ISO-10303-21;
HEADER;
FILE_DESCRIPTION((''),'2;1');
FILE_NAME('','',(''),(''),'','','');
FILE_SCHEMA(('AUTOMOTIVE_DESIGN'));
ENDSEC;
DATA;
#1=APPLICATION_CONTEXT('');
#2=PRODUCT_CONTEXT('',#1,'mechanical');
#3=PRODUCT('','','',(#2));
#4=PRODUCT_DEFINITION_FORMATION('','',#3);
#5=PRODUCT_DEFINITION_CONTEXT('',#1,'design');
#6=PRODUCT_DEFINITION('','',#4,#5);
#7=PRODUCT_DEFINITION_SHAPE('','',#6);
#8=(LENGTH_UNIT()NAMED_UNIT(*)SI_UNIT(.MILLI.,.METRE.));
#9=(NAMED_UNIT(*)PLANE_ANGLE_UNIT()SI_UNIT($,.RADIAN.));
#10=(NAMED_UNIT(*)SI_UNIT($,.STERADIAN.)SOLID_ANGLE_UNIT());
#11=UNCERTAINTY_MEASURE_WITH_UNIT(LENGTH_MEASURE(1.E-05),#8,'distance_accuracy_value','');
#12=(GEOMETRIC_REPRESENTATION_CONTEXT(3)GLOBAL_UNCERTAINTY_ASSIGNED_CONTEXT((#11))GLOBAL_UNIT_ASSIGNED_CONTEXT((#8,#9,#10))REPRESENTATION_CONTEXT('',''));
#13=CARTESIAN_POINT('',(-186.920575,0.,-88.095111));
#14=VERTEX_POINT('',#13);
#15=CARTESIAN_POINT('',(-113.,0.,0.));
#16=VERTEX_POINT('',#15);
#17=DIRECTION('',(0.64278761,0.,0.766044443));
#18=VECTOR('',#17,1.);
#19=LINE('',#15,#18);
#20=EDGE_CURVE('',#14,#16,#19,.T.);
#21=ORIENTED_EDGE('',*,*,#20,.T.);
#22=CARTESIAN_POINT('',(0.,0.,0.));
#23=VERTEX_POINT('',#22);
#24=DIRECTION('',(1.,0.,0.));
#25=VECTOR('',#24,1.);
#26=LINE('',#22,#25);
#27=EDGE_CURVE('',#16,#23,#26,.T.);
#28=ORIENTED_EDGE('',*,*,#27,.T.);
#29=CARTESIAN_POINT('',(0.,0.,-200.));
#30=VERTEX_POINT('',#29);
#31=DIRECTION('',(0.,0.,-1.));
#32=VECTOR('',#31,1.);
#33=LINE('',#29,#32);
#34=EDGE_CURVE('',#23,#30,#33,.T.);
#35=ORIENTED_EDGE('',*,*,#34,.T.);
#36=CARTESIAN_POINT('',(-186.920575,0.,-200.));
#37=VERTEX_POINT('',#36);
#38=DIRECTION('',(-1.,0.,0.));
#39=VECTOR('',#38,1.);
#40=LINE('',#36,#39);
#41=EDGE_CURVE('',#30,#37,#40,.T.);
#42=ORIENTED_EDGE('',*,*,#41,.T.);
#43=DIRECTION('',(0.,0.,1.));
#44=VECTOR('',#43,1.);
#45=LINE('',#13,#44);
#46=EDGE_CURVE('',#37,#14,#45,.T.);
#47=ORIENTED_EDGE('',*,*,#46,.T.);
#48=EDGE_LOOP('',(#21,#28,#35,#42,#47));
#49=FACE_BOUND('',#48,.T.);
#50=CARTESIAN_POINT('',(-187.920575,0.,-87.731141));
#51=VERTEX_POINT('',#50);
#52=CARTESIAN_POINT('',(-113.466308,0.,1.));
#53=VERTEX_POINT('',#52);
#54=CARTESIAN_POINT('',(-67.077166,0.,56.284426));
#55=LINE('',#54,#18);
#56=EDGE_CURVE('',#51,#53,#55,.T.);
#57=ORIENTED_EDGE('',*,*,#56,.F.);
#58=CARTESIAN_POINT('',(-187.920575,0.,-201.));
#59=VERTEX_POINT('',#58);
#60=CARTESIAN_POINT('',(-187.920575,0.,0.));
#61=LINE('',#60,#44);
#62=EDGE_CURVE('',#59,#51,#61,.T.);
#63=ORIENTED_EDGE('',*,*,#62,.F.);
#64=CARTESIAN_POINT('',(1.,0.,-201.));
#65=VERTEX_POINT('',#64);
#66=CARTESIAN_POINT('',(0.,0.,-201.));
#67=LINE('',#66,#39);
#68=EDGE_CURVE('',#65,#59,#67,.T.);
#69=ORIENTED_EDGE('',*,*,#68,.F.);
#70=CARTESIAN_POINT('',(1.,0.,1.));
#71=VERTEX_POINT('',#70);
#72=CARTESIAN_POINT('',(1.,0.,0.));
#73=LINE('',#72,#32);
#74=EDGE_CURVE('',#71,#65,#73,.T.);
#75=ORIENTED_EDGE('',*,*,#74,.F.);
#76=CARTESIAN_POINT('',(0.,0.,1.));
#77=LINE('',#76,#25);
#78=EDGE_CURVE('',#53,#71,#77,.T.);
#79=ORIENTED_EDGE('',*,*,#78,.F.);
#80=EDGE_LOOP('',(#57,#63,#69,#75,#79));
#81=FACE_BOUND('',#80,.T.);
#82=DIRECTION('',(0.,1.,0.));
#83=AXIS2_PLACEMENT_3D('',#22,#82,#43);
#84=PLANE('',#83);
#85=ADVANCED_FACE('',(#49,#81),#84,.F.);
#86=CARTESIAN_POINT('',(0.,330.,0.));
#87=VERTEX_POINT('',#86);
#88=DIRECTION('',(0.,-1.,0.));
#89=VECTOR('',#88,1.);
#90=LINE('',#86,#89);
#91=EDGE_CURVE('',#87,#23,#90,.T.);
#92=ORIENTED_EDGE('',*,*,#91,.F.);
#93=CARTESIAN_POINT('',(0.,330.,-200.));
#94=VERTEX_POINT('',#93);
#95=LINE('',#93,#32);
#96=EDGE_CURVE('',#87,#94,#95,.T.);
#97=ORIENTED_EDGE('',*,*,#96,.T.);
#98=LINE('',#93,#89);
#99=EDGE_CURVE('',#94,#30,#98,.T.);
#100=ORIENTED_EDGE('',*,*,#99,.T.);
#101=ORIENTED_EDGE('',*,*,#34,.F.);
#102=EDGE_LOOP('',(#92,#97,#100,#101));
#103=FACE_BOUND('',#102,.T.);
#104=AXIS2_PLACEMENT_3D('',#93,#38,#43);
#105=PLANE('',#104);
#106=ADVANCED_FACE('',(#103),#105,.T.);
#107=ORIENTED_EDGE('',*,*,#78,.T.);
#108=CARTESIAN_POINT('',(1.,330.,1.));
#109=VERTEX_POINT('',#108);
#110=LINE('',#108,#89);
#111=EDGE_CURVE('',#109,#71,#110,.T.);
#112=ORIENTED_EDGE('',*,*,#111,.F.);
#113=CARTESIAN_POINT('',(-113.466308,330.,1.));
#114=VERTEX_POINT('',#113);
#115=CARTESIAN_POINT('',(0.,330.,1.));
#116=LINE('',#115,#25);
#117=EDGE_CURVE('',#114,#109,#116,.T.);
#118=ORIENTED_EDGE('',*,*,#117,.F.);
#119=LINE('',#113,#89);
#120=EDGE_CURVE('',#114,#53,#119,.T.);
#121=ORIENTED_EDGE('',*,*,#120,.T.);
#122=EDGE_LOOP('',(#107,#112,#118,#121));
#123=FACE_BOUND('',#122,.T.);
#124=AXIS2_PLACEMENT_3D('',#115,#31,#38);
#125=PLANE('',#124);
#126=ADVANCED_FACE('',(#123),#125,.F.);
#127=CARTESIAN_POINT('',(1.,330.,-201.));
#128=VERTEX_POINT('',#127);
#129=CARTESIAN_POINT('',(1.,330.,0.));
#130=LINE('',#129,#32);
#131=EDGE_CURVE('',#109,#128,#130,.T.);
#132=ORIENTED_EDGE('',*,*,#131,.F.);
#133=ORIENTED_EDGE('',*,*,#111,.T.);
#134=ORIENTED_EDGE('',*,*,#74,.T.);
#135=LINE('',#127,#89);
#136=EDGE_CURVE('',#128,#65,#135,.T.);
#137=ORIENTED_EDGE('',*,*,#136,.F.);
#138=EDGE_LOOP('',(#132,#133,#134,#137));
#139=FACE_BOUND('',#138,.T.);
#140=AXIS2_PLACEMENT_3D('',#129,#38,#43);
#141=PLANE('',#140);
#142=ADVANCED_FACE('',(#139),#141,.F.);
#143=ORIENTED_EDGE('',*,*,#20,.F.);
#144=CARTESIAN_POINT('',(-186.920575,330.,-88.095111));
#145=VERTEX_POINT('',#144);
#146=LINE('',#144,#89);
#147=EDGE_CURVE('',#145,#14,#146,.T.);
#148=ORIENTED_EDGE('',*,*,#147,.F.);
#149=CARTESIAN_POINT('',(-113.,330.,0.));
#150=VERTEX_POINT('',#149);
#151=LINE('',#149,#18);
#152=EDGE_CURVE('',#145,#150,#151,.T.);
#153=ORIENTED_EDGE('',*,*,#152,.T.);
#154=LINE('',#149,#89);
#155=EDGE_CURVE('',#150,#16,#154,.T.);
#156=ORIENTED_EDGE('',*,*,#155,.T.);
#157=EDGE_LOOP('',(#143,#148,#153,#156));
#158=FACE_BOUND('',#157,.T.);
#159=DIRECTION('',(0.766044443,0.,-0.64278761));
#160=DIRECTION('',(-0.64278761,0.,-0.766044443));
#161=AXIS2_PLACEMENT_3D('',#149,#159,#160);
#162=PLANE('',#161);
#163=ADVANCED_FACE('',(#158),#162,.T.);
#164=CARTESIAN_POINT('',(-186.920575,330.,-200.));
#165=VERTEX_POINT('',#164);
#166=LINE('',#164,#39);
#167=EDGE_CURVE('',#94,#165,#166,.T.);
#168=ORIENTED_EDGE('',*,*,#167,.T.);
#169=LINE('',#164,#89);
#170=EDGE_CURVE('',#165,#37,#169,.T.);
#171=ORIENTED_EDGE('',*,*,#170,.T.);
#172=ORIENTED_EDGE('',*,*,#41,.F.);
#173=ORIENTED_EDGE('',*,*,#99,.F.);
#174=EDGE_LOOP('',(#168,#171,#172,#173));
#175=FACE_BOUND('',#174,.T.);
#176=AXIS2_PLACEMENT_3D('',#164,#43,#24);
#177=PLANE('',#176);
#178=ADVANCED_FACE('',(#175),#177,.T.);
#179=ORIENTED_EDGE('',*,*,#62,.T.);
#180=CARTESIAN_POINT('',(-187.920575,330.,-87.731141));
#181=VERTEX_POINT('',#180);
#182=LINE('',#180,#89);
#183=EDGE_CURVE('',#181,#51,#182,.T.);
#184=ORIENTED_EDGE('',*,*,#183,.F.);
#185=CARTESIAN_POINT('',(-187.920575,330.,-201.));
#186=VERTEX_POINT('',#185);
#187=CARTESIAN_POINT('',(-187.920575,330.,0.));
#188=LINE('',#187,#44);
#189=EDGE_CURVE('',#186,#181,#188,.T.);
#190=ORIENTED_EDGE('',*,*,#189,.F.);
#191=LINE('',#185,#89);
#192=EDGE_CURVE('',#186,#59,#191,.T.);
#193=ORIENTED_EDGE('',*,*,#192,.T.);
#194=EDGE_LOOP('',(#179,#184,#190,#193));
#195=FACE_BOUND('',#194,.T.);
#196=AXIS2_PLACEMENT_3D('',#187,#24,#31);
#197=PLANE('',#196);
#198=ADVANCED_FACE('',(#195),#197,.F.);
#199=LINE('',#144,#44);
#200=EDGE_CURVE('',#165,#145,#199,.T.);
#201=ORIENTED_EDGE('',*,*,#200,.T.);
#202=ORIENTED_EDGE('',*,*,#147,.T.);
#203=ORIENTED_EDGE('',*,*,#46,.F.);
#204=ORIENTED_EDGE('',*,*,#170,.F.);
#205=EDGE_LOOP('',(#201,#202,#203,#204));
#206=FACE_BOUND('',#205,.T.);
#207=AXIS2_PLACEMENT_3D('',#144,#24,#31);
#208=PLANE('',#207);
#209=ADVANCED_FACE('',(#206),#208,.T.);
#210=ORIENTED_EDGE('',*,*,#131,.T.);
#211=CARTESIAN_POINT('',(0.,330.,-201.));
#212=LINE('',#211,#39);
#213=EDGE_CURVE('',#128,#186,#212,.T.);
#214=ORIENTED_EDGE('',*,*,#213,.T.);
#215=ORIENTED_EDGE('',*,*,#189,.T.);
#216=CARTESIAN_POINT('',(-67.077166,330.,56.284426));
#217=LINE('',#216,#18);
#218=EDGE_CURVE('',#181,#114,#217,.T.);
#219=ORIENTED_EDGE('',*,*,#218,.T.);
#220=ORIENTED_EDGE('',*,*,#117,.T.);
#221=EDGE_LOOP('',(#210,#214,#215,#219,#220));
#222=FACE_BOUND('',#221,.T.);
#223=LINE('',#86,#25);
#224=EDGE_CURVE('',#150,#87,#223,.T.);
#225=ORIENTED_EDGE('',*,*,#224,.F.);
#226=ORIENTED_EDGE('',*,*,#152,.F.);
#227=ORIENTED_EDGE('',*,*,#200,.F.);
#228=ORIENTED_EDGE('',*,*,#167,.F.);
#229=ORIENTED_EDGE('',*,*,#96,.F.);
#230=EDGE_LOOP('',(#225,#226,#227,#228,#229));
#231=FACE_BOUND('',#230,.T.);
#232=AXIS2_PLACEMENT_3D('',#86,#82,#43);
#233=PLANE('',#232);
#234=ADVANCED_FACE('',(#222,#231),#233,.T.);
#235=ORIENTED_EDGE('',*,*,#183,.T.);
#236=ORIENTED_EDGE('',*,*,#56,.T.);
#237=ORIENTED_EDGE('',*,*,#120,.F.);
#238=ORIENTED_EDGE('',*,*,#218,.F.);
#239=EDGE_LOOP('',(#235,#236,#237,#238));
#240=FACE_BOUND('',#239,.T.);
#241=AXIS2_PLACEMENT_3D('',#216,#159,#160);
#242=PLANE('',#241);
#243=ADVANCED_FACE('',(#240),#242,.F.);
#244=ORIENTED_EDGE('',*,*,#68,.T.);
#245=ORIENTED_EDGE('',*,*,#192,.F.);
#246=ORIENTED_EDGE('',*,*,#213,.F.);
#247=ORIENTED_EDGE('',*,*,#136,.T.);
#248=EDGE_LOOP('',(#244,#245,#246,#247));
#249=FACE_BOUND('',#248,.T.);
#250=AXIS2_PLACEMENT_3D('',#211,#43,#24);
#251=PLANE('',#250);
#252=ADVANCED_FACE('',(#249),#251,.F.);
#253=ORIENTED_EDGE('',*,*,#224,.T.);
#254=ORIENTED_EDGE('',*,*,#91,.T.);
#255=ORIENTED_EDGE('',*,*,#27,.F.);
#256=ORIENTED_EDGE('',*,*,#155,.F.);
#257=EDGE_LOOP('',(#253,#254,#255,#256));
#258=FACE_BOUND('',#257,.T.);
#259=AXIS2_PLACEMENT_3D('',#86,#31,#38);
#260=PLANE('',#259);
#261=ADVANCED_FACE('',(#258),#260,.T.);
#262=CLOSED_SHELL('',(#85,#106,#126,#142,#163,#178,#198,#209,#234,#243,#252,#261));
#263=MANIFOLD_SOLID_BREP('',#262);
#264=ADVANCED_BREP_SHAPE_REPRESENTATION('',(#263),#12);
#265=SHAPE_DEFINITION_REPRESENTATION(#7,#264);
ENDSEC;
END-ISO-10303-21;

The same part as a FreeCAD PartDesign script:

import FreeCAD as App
import Part
import Sketcher

V = App.Vector
Q = App.Units.Quantity


def add_polygon(sketch, points):
    """Adds a closed chain of lines whose ends are joined by coincident constraints."""
    first, n = sketch.GeometryCount, len(points)
    for a, b in zip(points, points[1:] + points[:1]):
        sketch.addGeometry(Part.LineSegment(App.Vector(*a, 0), App.Vector(*b, 0)), False)
    for i in range(n):
        sketch.addConstraint(Sketcher.Constraint("Coincident", first + i, 2, first + (i + 1) % n, 1))

doc = App.newDocument("Part")
params = doc.addObject("Spreadsheet::Sheet", "Params")
for row, (alias, value) in enumerate([
    ("sketch1_width", "113 mm"),
    ("sketch1_height", "202 mm"),
    ("sketch1_height2", "200 mm"),
    ("sketch1_length", "115 mm"),
    ("pad1_length", "330 mm"),
], start=1):
    params.set(f"A{row}", alias)
    params.set(f"B{row}", "=" + value)
    params.setAlias(f"B{row}", alias)

body = doc.addObject("PartDesign::Body", "Body")

# Sketch on XZ plane
sketch1 = doc.addObject("Sketcher::SketchObject", "Sketch")
body.addObject(sketch1)
sketch1.AttachmentSupport = (doc.XZ_Plane, [""])
sketch1.MapMode = "FlatFace"
add_polygon(sketch1, [(-113, 1), (1, 1), (1, -201), (-188, -201), (-188, -88)])  # lines 0-4
add_polygon(sketch1, [(0, 0), (-113, 0), (-187, -88), (-187, -200), (0, -200)])  # lines 5-9
sketch1.addConstraint(Sketcher.Constraint("Horizontal", 0))
sketch1.addConstraint(Sketcher.Constraint("Vertical", 1))
sketch1.addConstraint(Sketcher.Constraint("Horizontal", 2))
sketch1.addConstraint(Sketcher.Constraint("Vertical", 3))
sketch1.addConstraint(Sketcher.Constraint("Horizontal", 5))
sketch1.addConstraint(Sketcher.Constraint("Vertical", 7))
sketch1.addConstraint(Sketcher.Constraint("Horizontal", 8))
sketch1.addConstraint(Sketcher.Constraint("Vertical", 9))
sketch1.addConstraint(Sketcher.Constraint("Coincident", 9, 2, -1, 1))
sketch1.addConstraint(Sketcher.Constraint("Parallel", 4, 6))
sketch1.addConstraint(Sketcher.Constraint("DistanceX", 5, 2, 5, 1, 113.0))
sketch1.addConstraint(Sketcher.Constraint("DistanceY", 1, 2, 1, 1, 202.0))
sketch1.addConstraint(Sketcher.Constraint("DistanceY", 9, 1, 9, 2, 200.0))
sketch1.addConstraint(Sketcher.Constraint("Angle", 4, Q("50 deg")))
sketch1.addConstraint(Sketcher.Constraint("Distance", 6, 115.0))
sketch1.addConstraint(Sketcher.Constraint("DistanceX", -1, 1, 0, 2, 1.0))
sketch1.addConstraint(Sketcher.Constraint("DistanceY", -1, 1, 0, 2, 1.0))
sketch1.addConstraint(Sketcher.Constraint("DistanceX", 3, 2, 6, 2, 1.0))
sketch1.addConstraint(Sketcher.Constraint("DistanceY", 3, 1, 3, 2, 113.268859))
sketch1.setExpression("Constraints[20]", "Params.sketch1_width")
sketch1.setExpression("Constraints[21]", "Params.sketch1_height")
sketch1.setExpression("Constraints[22]", "Params.sketch1_height2")
sketch1.setExpression("Constraints[24]", "Params.sketch1_length")
pad1 = doc.addObject("PartDesign::Pad", "Pad")
body.addObject(pad1)
pad1.Profile = sketch1
pad1.setExpression("Length", "Params.pad1_length")
pad1.Reversed = True

doc.recompute()
